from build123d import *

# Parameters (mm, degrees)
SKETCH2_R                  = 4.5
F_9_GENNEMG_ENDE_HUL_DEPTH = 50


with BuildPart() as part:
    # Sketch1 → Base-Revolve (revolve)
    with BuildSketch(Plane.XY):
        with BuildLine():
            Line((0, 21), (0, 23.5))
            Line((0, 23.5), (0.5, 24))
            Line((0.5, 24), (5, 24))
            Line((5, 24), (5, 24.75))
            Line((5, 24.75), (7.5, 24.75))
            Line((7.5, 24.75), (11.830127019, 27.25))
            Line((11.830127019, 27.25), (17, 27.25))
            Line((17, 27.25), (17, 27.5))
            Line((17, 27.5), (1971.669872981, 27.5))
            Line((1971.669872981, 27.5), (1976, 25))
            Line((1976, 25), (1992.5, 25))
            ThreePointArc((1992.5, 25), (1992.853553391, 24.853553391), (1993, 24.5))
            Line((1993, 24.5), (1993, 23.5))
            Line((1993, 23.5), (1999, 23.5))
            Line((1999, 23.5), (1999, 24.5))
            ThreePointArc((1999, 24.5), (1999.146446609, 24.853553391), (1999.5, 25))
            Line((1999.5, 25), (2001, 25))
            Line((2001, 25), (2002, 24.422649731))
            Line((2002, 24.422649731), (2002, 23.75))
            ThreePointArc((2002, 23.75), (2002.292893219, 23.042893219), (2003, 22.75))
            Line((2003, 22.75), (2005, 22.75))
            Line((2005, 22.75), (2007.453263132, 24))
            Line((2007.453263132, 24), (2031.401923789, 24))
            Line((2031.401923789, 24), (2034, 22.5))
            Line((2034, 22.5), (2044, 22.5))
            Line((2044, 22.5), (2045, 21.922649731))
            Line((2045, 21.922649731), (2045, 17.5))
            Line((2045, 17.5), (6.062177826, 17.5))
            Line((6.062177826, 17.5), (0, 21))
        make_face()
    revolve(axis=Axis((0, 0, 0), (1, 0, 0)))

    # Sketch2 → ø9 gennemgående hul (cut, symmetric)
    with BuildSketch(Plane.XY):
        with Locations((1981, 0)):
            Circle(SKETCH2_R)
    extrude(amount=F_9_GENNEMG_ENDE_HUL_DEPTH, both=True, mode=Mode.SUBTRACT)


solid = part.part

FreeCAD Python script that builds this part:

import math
import FreeCAD as App
import Part
import Sketcher
Q = App.Units.Quantity

doc = App.newDocument("Part")
body = doc.addObject("PartDesign::Body", "Body")

# Sketch on XY plane
sketch1 = body.newObject("Sketcher::SketchObject", "Sketch")
sketch1.AttachmentSupport = (doc.getObject("XY_Plane"), [""])
sketch1.MapMode = "FlatFace"
sketch1.addGeometry(Part.LineSegment(App.Vector(0, 23.5, 0), App.Vector(0, 21, 0)), False)
sketch1.addGeometry(Part.LineSegment(App.Vector(0, 21, 0), App.Vector(6.06, 17.5, 0)), False)
sketch1.addGeometry(Part.LineSegment(App.Vector(6.06, 17.5, 0), App.Vector(2045, 17.5, 0)), False)
sketch1.addGeometry(Part.LineSegment(App.Vector(2045, 17.5, 0), App.Vector(2045, 21.92, 0)), False)
sketch1.addGeometry(Part.LineSegment(App.Vector(2045, 21.92, 0), App.Vector(2044, 22.5, 0)), False)
sketch1.addGeometry(Part.LineSegment(App.Vector(2044, 22.5, 0), App.Vector(2034, 22.5, 0)), False)
sketch1.addGeometry(Part.LineSegment(App.Vector(2034, 22.5, 0), App.Vector(2031.4, 24, 0)), False)
sketch1.addGeometry(Part.LineSegment(App.Vector(2031.4, 24, 0), App.Vector(2007.45, 24, 0)), False)
sketch1.addGeometry(Part.LineSegment(App.Vector(2007.45, 24, 0), App.Vector(2005, 22.75, 0)), False)
sketch1.addGeometry(Part.LineSegment(App.Vector(2005, 22.75, 0), App.Vector(2003, 22.75, 0)), False)
sketch1.addGeometry(Part.ArcOfCircle(Part.Circle(App.Vector(2003, 23.75, 0), App.Vector(0, 0, 1), 1), math.radians(-180), math.radians(-90)), False)
sketch1.addGeometry(Part.LineSegment(App.Vector(2002, 23.75, 0), App.Vector(2002, 24.42, 0)), False)
sketch1.addGeometry(Part.LineSegment(App.Vector(2002, 24.42, 0), App.Vector(2001, 25, 0)), False)
sketch1.addGeometry(Part.LineSegment(App.Vector(2001, 25, 0), App.Vector(1999.5, 25, 0)), False)
sketch1.addGeometry(Part.ArcOfCircle(Part.Circle(App.Vector(1999.5, 24.5, 0), App.Vector(0, 0, 1), 0.5), math.radians(90), math.radians(180)), False)
sketch1.addGeometry(Part.LineSegment(App.Vector(1999, 24.5, 0), App.Vector(1999, 23.5, 0)), False)
sketch1.addGeometry(Part.LineSegment(App.Vector(1999, 23.5, 0), App.Vector(1993, 23.5, 0)), False)
sketch1.addGeometry(Part.LineSegment(App.Vector(1993, 23.5, 0), App.Vector(1993, 24.5, 0)), False)
sketch1.addGeometry(Part.ArcOfCircle(Part.Circle(App.Vector(1992.5, 24.5, 0), App.Vector(0, 0, 1), 0.5), math.radians(0), math.radians(90)), False)
sketch1.addGeometry(Part.LineSegment(App.Vector(1992.5, 25, 0), App.Vector(1976, 25, 0)), False)
sketch1.addGeometry(Part.LineSegment(App.Vector(1976, 25, 0), App.Vector(1971.67, 27.5, 0)), False)
sketch1.addGeometry(Part.LineSegment(App.Vector(1971.67, 27.5, 0), App.Vector(17, 27.5, 0)), False)
sketch1.addGeometry(Part.LineSegment(App.Vector(17, 27.5, 0), App.Vector(17, 27.25, 0)), False)
sketch1.addGeometry(Part.LineSegment(App.Vector(17, 27.25, 0), App.Vector(11.83, 27.25, 0)), False)
sketch1.addGeometry(Part.LineSegment(App.Vector(11.83, 27.25, 0), App.Vector(7.5, 24.75, 0)), False)
sketch1.addGeometry(Part.LineSegment(App.Vector(7.5, 24.75, 0), App.Vector(5, 24.75, 0)), False)
sketch1.addGeometry(Part.LineSegment(App.Vector(5, 24.75, 0), App.Vector(5, 24, 0)), False)
sketch1.addGeometry(Part.LineSegment(App.Vector(5, 24, 0), App.Vector(0.5, 24, 0)), False)
sketch1.addGeometry(Part.LineSegment(App.Vector(0.5, 24, 0), App.Vector(0, 23.5, 0)), False)
sketch1.addConstraint(Sketcher.Constraint("Coincident", 0, 2, 1, 1))
sketch1.addConstraint(Sketcher.Constraint("Coincident", 1, 2, 2, 1))
sketch1.addConstraint(Sketcher.Constraint("Coincident", 2, 2, 3, 1))
sketch1.addConstraint(Sketcher.Constraint("Coincident", 3, 2, 4, 1))
sketch1.addConstraint(Sketcher.Constraint("Coincident", 4, 2, 5, 1))
sketch1.addConstraint(Sketcher.Constraint("Coincident", 5, 2, 6, 1))
sketch1.addConstraint(Sketcher.Constraint("Coincident", 6, 2, 7, 1))
sketch1.addConstraint(Sketcher.Constraint("Coincident", 7, 2, 8, 1))
sketch1.addConstraint(Sketcher.Constraint("Coincident", 8, 2, 9, 1))
sketch1.addConstraint(Sketcher.Constraint("Tangent", 9, 2, 10, 2))
sketch1.addConstraint(Sketcher.Constraint("Tangent", 10, 1, 11, 1))
sketch1.addConstraint(Sketcher.Constraint("Coincident", 11, 2, 12, 1))
sketch1.addConstraint(Sketcher.Constraint("Coincident", 12, 2, 13, 1))
sketch1.addConstraint(Sketcher.Constraint("Tangent", 13, 2, 14, 1))
sketch1.addConstraint(Sketcher.Constraint("Tangent", 14, 2, 15, 1))
sketch1.addConstraint(Sketcher.Constraint("Coincident", 15, 2, 16, 1))
sketch1.addConstraint(Sketcher.Constraint("Coincident", 16, 2, 17, 1))
sketch1.addConstraint(Sketcher.Constraint("Tangent", 17, 2, 18, 1))
sketch1.addConstraint(Sketcher.Constraint("Tangent", 18, 2, 19, 1))
sketch1.addConstraint(Sketcher.Constraint("Coincident", 19, 2, 20, 1))
sketch1.addConstraint(Sketcher.Constraint("Coincident", 20, 2, 21, 1))
sketch1.addConstraint(Sketcher.Constraint("Coincident", 21, 2, 22, 1))
sketch1.addConstraint(Sketcher.Constraint("Coincident", 22, 2, 23, 1))
sketch1.addConstraint(Sketcher.Constraint("Coincident", 23, 2, 24, 1))
sketch1.addConstraint(Sketcher.Constraint("Coincident", 24, 2, 25, 1))
sketch1.addConstraint(Sketcher.Constraint("Coincident", 25, 2, 26, 1))
sketch1.addConstraint(Sketcher.Constraint("Coincident", 26, 2, 27, 1))
sketch1.addConstraint(Sketcher.Constraint("Coincident", 27, 2, 28, 1))
sketch1.addConstraint(Sketcher.Constraint("Coincident", 28, 2, 0, 1))
sketch1.addConstraint(Sketcher.Constraint("Vertical", 0))
sketch1.addConstraint(Sketcher.Constraint("Horizontal", 2))
sketch1.addConstraint(Sketcher.Constraint("Vertical", 3))
sketch1.addConstraint(Sketcher.Constraint("Horizontal", 5))
sketch1.addConstraint(Sketcher.Constraint("Horizontal", 7))
sketch1.addConstraint(Sketcher.Constraint("Horizontal", 9))
sketch1.addConstraint(Sketcher.Constraint("Vertical", 11))
sketch1.addConstraint(Sketcher.Constraint("Horizontal", 13))
sketch1.addConstraint(Sketcher.Constraint("Vertical", 15))
sketch1.addConstraint(Sketcher.Constraint("Horizontal", 16))
sketch1.addConstraint(Sketcher.Constraint("Vertical", 17))
sketch1.addConstraint(Sketcher.Constraint("Horizontal", 19))
sketch1.addConstraint(Sketcher.Constraint("Horizontal", 21))
sketch1.addConstraint(Sketcher.Constraint("Vertical", 22))
sketch1.addConstraint(Sketcher.Constraint("Horizontal", 23))
sketch1.addConstraint(Sketcher.Constraint("Horizontal", 25))
sketch1.addConstraint(Sketcher.Constraint("Vertical", 26))
sketch1.addConstraint(Sketcher.Constraint("Horizontal", 27))
sketch1.addConstraint(Sketcher.Constraint("Equal", 14, 18))
sketch1.addConstraint(Sketcher.Constraint("PointOnObject", 0, 2, -2))
sketch1.addConstraint(Sketcher.Constraint("Parallel", 1, 4))
sketch1.addConstraint(Sketcher.Constraint("Parallel", 4, 6))
sketch1.addConstraint(Sketcher.Constraint("Parallel", 6, 12))
sketch1.addConstraint(Sketcher.Constraint("Parallel", 12, 20))
sketch1.addConstraint(Sketcher.Constraint("Horizontal", 14, 3, 18, 3))
sketch1.addConstraint(Sketcher.Constraint("Horizontal", 7, 2, 26, 2))
sketch1.addConstraint(Sketcher.Constraint("Horizontal", 16, 2, 28, 2))
sketch1.addConstraint(Sketcher.Constraint("Equal", 25, 0))
sketch1.addConstraint(Sketcher.Constraint("Equal", 4, 12))
sketch1.addConstraint(Sketcher.Constraint("Equal", 20, 24))
sketch1.addConstraint(Sketcher.Constraint("Radius", 10, 1.0))
sketch1.addConstraint(Sketcher.Constraint("Radius", 14, 0.5))
sketch1.addConstraint(Sketcher.Constraint("DistanceX", 5, 2, 5, 1, 10.0))
sketch1.addConstraint(Sketcher.Constraint("DistanceX", 9, 2, 9, 1, 2.0))
sketch1.addConstraint(Sketcher.Constraint("DistanceX", 16, 2, 16, 1, 6.0))
sketch1.addConstraint(Sketcher.Constraint("DistanceY", 15, 2, 15, 1, 1.0))
sketch1.addConstraint(Sketcher.Constraint("Angle", 1, Q("-30 deg")))
sketch1.addConstraint(Sketcher.Constraint("Angle", 8, Q("-153 deg")))
sketch1.addConstraint(Sketcher.Constraint("Angle", 24, Q("-150 deg")))
sketch1.addConstraint(Sketcher.Constraint("Angle", 28, Q("-135 deg")))
sketch1.addConstraint(Sketcher.Constraint("Distance", 1, 7.0))
sketch1.addConstraint(Sketcher.Constraint("Distance", 6, 3.0))
sketch1.addConstraint(Sketcher.Constraint("Distance", 20, 5.0))
sketch1.addConstraint(Sketcher.Constraint("DistanceX", 13, 2, 13, 1, 1.5))
sketch1.addConstraint(Sketcher.Constraint("DistanceX", 19, 2, 19, 1, 16.5))
sketch1.addConstraint(Sketcher.Constraint("DistanceX", 25, 2, 25, 1, 2.5))
sketch1.addConstraint(Sketcher.Constraint("DistanceX", 27, 2, 27, 1, 4.5))
sketch1.addConstraint(Sketcher.Constraint("DistanceX", -1, 1, 10, 3, 2003.0))
sketch1.addConstraint(Sketcher.Constraint("DistanceY", -1, 1, 0, 2, 21.0))
sketch1.addConstraint(Sketcher.Constraint("DistanceX", -1, 1, 2, 2, 2045.0))
sketch1.addConstraint(Sketcher.Constraint("DistanceX", -1, 1, 4, 2, 2044.0))
sketch1.addConstraint(Sketcher.Constraint("DistanceY", -1, 1, 6, 2, 24.0))
sketch1.addConstraint(Sketcher.Constraint("DistanceX", -1, 1, 21, 2, 17.0))
sketch1.addConstraint(Sketcher.Constraint("DistanceY", 22, 2, 22, 1, 0.25))
sketch1.addConstraint(Sketcher.Constraint("DistanceY", -1, 1, 10, 3, 23.75))
revolution = body.newObject("PartDesign::Revolution", "Revolution")
revolution.Profile = sketch1
revolution.ReferenceAxis = (sketch1, ["H_Axis"])
revolution.Angle = 360

# Sketch on XY plane
sketch2 = body.newObject("Sketcher::SketchObject", "Sketch001")
sketch2.AttachmentSupport = (doc.getObject("XY_Plane"), [""])
sketch2.MapMode = "FlatFace"
sketch2.addGeometry(Part.Circle(App.Vector(1981, 0, 0), App.Vector(0, 0, 1), 4.5), False)
sketch2.addConstraint(Sketcher.Constraint("PointOnObject", 0, 3, -1))
sketch2.addConstraint(Sketcher.Constraint("Diameter", 0, 9.0))
sketch2.addConstraint(Sketcher.Constraint("DistanceX", -1, 1, 0, 3, 1981.0))
pocket1 = body.newObject("PartDesign::Pocket", "Pocket")
pocket1.Profile = sketch2
pocket1.Length = 100
pocket1.Midplane = True

doc.recompute()
